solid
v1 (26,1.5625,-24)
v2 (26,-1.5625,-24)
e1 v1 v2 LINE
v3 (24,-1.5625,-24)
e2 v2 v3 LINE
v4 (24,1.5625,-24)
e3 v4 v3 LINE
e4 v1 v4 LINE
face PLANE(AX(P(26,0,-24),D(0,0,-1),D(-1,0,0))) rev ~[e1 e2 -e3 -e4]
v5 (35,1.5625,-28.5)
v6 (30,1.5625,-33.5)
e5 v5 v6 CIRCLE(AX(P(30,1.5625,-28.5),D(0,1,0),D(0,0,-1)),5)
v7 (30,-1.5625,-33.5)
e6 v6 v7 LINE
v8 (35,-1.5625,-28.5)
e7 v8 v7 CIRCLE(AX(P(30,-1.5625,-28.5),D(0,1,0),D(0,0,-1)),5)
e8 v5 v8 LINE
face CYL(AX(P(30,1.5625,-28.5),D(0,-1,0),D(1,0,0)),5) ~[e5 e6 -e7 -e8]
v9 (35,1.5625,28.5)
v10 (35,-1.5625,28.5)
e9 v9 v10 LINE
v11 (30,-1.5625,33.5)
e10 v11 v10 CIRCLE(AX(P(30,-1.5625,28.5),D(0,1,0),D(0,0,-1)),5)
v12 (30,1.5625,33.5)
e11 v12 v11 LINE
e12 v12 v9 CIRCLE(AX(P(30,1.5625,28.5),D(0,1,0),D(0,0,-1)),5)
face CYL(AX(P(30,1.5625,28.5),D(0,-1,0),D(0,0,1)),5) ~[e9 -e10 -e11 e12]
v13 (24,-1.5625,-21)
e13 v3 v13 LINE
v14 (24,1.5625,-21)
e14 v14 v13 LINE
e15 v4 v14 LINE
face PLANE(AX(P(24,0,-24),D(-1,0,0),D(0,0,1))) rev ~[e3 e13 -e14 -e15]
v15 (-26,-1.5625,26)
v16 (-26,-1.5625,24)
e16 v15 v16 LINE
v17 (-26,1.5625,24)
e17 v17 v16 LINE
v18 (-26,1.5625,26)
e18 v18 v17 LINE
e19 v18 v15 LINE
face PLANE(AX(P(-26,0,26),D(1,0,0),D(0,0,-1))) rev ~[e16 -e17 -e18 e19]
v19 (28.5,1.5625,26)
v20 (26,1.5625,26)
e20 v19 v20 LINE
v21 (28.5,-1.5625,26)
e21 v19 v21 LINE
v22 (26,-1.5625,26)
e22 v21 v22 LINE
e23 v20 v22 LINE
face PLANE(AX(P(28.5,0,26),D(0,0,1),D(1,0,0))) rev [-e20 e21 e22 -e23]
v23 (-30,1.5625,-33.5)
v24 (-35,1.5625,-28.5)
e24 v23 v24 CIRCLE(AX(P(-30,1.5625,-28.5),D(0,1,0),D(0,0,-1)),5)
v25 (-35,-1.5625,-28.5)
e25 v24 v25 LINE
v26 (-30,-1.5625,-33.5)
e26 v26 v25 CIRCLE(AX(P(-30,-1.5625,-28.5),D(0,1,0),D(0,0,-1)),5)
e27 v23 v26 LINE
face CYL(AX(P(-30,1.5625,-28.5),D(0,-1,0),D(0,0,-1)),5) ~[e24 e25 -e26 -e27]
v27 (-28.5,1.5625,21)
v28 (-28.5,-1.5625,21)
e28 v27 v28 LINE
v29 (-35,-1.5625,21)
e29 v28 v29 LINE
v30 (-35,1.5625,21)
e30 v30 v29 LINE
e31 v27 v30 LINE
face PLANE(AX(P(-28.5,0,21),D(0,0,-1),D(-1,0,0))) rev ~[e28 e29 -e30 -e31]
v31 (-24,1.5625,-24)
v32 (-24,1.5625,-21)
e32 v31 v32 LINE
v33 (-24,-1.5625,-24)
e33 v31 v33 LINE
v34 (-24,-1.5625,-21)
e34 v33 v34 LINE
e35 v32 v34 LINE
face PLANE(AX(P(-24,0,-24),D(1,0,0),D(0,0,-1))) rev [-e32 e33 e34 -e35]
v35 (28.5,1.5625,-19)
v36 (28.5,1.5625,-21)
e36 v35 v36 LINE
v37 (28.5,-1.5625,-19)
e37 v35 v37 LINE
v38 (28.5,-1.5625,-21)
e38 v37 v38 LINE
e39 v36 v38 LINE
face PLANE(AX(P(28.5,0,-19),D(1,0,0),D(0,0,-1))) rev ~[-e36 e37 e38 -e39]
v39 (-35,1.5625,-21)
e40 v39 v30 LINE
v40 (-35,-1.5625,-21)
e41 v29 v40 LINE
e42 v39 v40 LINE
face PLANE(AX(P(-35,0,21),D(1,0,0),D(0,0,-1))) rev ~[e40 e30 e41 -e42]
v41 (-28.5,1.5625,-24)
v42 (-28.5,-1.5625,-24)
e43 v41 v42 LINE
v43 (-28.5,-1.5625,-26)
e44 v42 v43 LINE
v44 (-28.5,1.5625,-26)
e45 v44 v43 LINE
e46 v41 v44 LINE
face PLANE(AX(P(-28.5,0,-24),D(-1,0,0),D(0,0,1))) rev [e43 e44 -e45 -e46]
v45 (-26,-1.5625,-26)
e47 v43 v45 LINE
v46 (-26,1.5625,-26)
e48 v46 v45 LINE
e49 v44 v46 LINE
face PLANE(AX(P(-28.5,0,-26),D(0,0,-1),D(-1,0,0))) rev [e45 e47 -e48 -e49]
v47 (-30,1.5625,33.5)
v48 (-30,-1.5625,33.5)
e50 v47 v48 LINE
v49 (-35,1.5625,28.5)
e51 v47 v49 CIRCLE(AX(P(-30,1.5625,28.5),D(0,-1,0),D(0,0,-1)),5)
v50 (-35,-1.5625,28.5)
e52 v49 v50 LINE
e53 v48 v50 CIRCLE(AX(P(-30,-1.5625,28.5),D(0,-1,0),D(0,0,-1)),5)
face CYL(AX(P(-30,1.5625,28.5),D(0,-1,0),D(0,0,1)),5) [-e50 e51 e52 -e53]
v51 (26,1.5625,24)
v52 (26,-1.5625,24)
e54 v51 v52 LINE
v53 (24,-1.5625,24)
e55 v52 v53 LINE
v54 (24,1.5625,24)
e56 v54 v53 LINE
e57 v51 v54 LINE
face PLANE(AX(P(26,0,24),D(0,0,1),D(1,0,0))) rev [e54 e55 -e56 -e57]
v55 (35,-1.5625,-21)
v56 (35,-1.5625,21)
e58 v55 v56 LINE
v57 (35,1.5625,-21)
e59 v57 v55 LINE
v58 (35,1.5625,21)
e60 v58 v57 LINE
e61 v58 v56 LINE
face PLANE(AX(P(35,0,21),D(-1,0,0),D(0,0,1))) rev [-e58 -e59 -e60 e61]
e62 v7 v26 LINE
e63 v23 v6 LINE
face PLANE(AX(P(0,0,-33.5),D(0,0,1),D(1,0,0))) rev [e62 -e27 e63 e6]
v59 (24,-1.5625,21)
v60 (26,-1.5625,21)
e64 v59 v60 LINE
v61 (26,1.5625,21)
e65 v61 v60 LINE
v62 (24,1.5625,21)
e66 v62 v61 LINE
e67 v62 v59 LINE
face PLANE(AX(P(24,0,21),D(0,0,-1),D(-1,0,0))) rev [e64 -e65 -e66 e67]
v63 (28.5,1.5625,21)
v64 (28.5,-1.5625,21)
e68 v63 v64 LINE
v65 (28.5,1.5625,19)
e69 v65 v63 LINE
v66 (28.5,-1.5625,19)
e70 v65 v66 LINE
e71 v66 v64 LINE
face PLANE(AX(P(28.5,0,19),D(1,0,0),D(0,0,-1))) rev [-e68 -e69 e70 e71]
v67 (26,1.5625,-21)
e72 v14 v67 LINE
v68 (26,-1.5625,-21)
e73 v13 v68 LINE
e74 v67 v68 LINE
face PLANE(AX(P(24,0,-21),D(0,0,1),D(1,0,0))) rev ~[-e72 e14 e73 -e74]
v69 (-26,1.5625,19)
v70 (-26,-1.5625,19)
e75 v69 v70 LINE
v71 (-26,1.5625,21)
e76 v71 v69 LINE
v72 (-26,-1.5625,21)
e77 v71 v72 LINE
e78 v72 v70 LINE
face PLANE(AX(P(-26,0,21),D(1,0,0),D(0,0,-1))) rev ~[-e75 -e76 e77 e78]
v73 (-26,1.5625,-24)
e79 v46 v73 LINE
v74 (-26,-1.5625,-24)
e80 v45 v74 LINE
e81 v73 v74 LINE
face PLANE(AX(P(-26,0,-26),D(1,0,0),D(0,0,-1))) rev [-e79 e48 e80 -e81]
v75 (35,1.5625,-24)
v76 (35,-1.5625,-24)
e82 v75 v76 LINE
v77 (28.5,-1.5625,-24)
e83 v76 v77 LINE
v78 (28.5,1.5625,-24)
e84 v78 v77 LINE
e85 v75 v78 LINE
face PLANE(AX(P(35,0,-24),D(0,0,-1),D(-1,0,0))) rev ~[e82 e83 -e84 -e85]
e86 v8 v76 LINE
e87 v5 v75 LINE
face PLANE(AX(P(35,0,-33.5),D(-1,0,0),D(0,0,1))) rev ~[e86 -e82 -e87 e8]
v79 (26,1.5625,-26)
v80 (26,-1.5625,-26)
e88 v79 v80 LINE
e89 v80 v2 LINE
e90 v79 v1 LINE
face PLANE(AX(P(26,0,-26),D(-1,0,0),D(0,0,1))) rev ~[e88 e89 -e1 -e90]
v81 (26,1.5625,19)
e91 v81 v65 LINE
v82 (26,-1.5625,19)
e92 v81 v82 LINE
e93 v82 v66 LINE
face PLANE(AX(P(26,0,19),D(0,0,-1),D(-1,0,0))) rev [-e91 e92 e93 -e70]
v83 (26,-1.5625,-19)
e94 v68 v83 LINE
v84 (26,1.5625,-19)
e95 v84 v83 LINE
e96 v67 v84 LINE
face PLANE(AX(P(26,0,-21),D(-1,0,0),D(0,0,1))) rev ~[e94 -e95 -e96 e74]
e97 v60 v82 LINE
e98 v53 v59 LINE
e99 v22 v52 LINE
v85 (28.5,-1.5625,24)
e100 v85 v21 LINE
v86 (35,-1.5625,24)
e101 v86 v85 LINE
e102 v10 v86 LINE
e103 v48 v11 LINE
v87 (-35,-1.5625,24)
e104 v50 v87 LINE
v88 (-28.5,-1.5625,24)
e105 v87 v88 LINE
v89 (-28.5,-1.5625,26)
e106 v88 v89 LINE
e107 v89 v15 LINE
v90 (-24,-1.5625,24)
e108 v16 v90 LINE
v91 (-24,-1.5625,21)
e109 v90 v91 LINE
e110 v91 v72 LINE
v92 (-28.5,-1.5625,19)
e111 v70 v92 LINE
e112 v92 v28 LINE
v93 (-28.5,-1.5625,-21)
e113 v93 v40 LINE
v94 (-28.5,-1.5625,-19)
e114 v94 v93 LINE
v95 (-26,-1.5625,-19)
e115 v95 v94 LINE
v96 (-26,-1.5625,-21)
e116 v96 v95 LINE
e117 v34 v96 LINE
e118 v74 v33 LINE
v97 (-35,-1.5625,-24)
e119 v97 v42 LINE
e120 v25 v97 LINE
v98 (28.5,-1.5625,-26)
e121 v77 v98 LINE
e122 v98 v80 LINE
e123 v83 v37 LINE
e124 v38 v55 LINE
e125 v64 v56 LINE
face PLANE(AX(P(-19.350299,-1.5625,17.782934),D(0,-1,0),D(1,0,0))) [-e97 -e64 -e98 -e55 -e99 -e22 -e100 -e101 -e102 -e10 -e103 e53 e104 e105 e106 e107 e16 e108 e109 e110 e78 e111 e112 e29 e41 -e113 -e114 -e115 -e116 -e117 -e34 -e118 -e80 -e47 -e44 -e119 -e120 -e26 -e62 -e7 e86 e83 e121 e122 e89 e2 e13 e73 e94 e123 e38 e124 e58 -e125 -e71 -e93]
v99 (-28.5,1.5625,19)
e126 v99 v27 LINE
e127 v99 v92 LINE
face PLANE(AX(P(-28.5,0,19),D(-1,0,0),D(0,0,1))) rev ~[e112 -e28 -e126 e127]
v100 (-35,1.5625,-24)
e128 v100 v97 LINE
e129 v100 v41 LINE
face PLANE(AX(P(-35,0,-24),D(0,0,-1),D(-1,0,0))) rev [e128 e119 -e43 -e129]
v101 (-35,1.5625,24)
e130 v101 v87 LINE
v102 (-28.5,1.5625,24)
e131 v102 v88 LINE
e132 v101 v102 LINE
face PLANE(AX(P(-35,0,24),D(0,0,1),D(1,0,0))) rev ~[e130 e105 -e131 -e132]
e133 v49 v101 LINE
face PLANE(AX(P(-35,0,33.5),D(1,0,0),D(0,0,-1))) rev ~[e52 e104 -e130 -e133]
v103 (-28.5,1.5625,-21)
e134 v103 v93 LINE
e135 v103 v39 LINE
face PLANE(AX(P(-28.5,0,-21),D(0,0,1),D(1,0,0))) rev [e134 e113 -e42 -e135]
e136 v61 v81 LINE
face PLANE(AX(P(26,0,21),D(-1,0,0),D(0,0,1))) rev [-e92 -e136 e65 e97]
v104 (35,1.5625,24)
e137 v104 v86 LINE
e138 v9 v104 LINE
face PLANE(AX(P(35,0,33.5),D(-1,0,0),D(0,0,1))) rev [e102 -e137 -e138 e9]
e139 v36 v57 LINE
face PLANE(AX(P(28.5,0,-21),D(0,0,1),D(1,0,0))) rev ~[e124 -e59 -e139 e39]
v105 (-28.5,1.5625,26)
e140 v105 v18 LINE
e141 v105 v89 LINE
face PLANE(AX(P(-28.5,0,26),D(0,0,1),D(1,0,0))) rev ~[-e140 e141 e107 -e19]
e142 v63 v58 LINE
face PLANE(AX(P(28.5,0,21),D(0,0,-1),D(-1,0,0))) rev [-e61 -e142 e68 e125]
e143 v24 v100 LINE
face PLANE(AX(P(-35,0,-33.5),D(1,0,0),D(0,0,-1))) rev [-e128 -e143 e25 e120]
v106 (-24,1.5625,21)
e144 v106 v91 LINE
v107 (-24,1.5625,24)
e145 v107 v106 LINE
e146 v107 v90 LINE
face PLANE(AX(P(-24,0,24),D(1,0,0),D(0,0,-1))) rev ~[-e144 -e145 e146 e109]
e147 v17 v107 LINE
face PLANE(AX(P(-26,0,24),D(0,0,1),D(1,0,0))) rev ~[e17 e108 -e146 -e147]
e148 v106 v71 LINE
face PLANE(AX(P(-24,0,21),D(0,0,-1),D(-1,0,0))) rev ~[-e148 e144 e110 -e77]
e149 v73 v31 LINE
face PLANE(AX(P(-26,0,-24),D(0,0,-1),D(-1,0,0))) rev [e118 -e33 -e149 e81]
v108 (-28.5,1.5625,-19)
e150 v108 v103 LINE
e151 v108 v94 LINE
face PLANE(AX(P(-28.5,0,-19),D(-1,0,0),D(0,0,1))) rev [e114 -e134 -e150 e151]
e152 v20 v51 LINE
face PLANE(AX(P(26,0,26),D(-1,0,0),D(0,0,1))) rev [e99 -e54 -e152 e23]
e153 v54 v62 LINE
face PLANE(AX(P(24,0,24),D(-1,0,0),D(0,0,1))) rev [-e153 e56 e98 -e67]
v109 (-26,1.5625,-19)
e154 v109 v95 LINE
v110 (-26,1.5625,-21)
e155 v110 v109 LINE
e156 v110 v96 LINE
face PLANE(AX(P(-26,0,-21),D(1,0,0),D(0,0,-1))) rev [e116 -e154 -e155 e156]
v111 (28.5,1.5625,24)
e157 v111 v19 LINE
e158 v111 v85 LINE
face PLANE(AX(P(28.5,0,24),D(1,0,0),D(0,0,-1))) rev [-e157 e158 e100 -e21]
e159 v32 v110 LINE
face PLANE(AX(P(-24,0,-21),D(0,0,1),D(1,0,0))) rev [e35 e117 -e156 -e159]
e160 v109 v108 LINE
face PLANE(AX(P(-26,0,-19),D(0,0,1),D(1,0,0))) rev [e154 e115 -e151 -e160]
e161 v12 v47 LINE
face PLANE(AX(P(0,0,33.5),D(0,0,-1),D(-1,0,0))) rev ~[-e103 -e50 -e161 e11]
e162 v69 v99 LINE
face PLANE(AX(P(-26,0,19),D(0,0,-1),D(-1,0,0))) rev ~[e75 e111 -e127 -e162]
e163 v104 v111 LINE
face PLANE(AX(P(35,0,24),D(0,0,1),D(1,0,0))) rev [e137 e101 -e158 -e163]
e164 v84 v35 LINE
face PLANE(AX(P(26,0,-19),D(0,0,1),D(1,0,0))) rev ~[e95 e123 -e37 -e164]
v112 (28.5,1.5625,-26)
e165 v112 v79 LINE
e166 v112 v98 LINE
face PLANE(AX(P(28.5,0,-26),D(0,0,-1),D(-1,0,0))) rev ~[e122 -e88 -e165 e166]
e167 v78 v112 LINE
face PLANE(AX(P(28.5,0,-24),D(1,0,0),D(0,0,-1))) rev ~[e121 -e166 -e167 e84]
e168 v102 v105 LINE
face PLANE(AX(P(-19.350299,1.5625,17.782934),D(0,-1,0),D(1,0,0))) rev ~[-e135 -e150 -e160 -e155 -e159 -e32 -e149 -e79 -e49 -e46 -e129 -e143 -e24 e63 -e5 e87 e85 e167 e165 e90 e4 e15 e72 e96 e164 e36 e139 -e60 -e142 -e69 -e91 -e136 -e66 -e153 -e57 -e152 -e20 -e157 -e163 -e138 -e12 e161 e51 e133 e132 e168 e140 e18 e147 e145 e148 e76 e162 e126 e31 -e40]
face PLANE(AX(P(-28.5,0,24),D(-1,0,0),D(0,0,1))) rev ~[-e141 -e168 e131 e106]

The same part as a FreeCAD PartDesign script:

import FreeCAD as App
import Part
import Sketcher


def edges_at(feature, points):
    """Names of the edges that pass closest to the given points."""
    edges = feature.Shape.Edges
    near = lambda p: min(range(len(edges)), key=lambda i: edges[i].distToShape(Part.Vertex(*p))[0])
    return sorted({f"Edge{near(p) + 1}" for p in points})

doc = App.newDocument("Part")
params = doc.addObject("Spreadsheet::Sheet", "Params")
for row, (alias, value) in enumerate([
    ("sketch1_width", "35 mm"),
    ("sketch1_width2", "2 mm"),
    ("sketch1_height", "21 mm"),
    ("sketch1_height2", "3 mm"),
    ("sketch1_width3", "6.5 mm"),
    ("pad1_length", "3.125 mm"),
    ("sketch2_width", "35 mm"),
    ("sketch2_width2", "2 mm"),
    ("sketch2_height", "21 mm"),
    ("sketch2_height2", "3 mm"),
    ("sketch2_width3", "6.5 mm"),
    ("pad2_length", "3.125 mm"),
    ("fillet_radius", "5 mm"),
], start=1):
    params.set(f"A{row}", alias)
    params.set(f"B{row}", "=" + value)
    params.setAlias(f"B{row}", alias)

body = doc.addObject("PartDesign::Body", "Body")

# Sketch on XZ plane
sketch1 = body.newObject("Sketcher::SketchObject", "Sketch")
sketch1.AttachmentSupport = (doc.getObject("XZ_Plane"), [""])
sketch1.MapMode = "FlatFace"
sketch1.addGeometry(Part.LineSegment(App.Vector(35, -33.5, 0), App.Vector(0, -33.5, 0)), False)
sketch1.addGeometry(Part.LineSegment(App.Vector(0, -33.5, 0), App.Vector(0, 0, 0)), False)
sketch1.addGeometry(Part.LineSegment(App.Vector(0, 0, 0), App.Vector(35, 0, 0)), False)
sketch1.addGeometry(Part.LineSegment(App.Vector(35, 0, 0), App.Vector(35, -21, 0)), False)
sketch1.addGeometry(Part.LineSegment(App.Vector(35, -21, 0), App.Vector(28.5, -21, 0)), False)
sketch1.addGeometry(Part.LineSegment(App.Vector(28.5, -21, 0), App.Vector(28.5, -19, 0)), False)
sketch1.addGeometry(Part.LineSegment(App.Vector(28.5, -19, 0), App.Vector(26, -19, 0)), False)
sketch1.addGeometry(Part.LineSegment(App.Vector(26, -19, 0), App.Vector(26, -21, 0)), False)
sketch1.addGeometry(Part.LineSegment(App.Vector(26, -21, 0), App.Vector(24, -21, 0)), False)
sketch1.addGeometry(Part.LineSegment(App.Vector(24, -21, 0), App.Vector(24, -24, 0)), False)
sketch1.addGeometry(Part.LineSegment(App.Vector(24, -24, 0), App.Vector(26, -24, 0)), False)
sketch1.addGeometry(Part.LineSegment(App.Vector(26, -24, 0), App.Vector(26, -26, 0)), False)
sketch1.addGeometry(Part.LineSegment(App.Vector(26, -26, 0), App.Vector(28.5, -26, 0)), False)
sketch1.addGeometry(Part.LineSegment(App.Vector(28.5, -26, 0), App.Vector(28.5, -24, 0)), False)
sketch1.addGeometry(Part.LineSegment(App.Vector(28.5, -24, 0), App.Vector(35, -24, 0)), False)
sketch1.addGeometry(Part.LineSegment(App.Vector(35, -24, 0), App.Vector(35, -33.5, 0)), False)
sketch1.addConstraint(Sketcher.Constraint("Coincident", 0, 2, 1, 1))
sketch1.addConstraint(Sketcher.Constraint("Coincident", 1, 2, 2, 1))
sketch1.addConstraint(Sketcher.Constraint("Coincident", 2, 2, 3, 1))
sketch1.addConstraint(Sketcher.Constraint("Coincident", 3, 2, 4, 1))
sketch1.addConstraint(Sketcher.Constraint("Coincident", 4, 2, 5, 1))
sketch1.addConstraint(Sketcher.Constraint("Coincident", 5, 2, 6, 1))
sketch1.addConstraint(Sketcher.Constraint("Coincident", 6, 2, 7, 1))
sketch1.addConstraint(Sketcher.Constraint("Coincident", 7, 2, 8, 1))
sketch1.addConstraint(Sketcher.Constraint("Coincident", 8, 2, 9, 1))
sketch1.addConstraint(Sketcher.Constraint("Coincident", 9, 2, 10, 1))
sketch1.addConstraint(Sketcher.Constraint("Coincident", 10, 2, 11, 1))
sketch1.addConstraint(Sketcher.Constraint("Coincident", 11, 2, 12, 1))
sketch1.addConstraint(Sketcher.Constraint("Coincident", 12, 2, 13, 1))
sketch1.addConstraint(Sketcher.Constraint("Coincident", 13, 2, 14, 1))
sketch1.addConstraint(Sketcher.Constraint("Coincident", 14, 2, 15, 1))
sketch1.addConstraint(Sketcher.Constraint("Coincident", 15, 2, 0, 1))
sketch1.addConstraint(Sketcher.Constraint("Horizontal", 0))
sketch1.addConstraint(Sketcher.Constraint("Vertical", 1))
sketch1.addConstraint(Sketcher.Constraint("Horizontal", 2))
sketch1.addConstraint(Sketcher.Constraint("Vertical", 3))
sketch1.addConstraint(Sketcher.Constraint("Horizontal", 4))
sketch1.addConstraint(Sketcher.Constraint("Vertical", 5))
sketch1.addConstraint(Sketcher.Constraint("Horizontal", 6))
sketch1.addConstraint(Sketcher.Constraint("Vertical", 7))
sketch1.addConstraint(Sketcher.Constraint("Horizontal", 8))
sketch1.addConstraint(Sketcher.Constraint("Vertical", 9))
sketch1.addConstraint(Sketcher.Constraint("Horizontal", 10))
sketch1.addConstraint(Sketcher.Constraint("Vertical", 11))
sketch1.addConstraint(Sketcher.Constraint("Horizontal", 12))
sketch1.addConstraint(Sketcher.Constraint("Vertical", 13))
sketch1.addConstraint(Sketcher.Constraint("Horizontal", 14))
sketch1.addConstraint(Sketcher.Constraint("Vertical", 15))
sketch1.addConstraint(Sketcher.Constraint("Coincident", 1, 2, -1, 1))
sketch1.addConstraint(Sketcher.Constraint("Horizontal", 4, 2, 7, 2))
sketch1.addConstraint(Sketcher.Constraint("Horizontal", 10, 2, 13, 2))
sketch1.addConstraint(Sketcher.Constraint("Vertical", 7, 2, 10, 2))
sketch1.addConstraint(Sketcher.Constraint("Vertical", 5, 2, 12, 2))
sketch1.addConstraint(Sketcher.Constraint("Vertical", 3, 2, 14, 2))
sketch1.addConstraint(Sketcher.Constraint("Equal", 10, 5))
sketch1.addConstraint(Sketcher.Constraint("Equal", 7, 11))
sketch1.addConstraint(Sketcher.Constraint("DistanceX", 0, 2, 0, 1, 35.0))
sketch1.addConstraint(Sketcher.Constraint("DistanceX", 8, 2, 8, 1, 2.0))
sketch1.addConstraint(Sketcher.Constraint("DistanceY", 3, 2, 3, 1, 21.0))
sketch1.addConstraint(Sketcher.Constraint("DistanceY", 9, 2, 9, 1, 3.0))
sketch1.addConstraint(Sketcher.Constraint("DistanceX", 4, 2, 4, 1, 6.5))
sketch1.addConstraint(Sketcher.Constraint("DistanceX", 6, 2, 6, 1, 2.5))
sketch1.addConstraint(Sketcher.Constraint("DistanceY", 1, 1, 1, 2, 33.5))
sketch1.setExpression("Constraints[40]", "Params.sketch1_width")
sketch1.setExpression("Constraints[41]", "Params.sketch1_width2")
sketch1.setExpression("Constraints[42]", "Params.sketch1_height")
sketch1.setExpression("Constraints[43]", "Params.sketch1_height2")
sketch1.setExpression("Constraints[44]", "Params.sketch1_width3")
pad1 = body.newObject("PartDesign::Pad", "Pad")
pad1.Profile = sketch1
pad1.setExpression("Length", "Params.pad1_length")
pad1.Midplane = True
doc.recompute()

mirrored = body.newObject("PartDesign::Mirrored", "Mirrored")
mirrored.Originals = [pad1]
mirrored.MirrorPlane = (doc.getObject("YZ_Plane"), [""])
body.Tip = mirrored
doc.recompute()

mirrored2 = body.newObject("PartDesign::Mirrored", "Mirrored001")
mirrored2.Originals = [pad1]
mirrored2.MirrorPlane = (doc.getObject("XY_Plane"), [""])
body.Tip = mirrored2

# Sketch on XZ plane
sketch2 = body.newObject("Sketcher::SketchObject", "Sketch001")
sketch2.AttachmentSupport = (doc.getObject("XZ_Plane"), [""])
sketch2.MapMode = "FlatFace"
sketch2.addGeometry(Part.LineSegment(App.Vector(-35, 33.5, 0), App.Vector(0, 33.5, 0)), False)
sketch2.addGeometry(Part.LineSegment(App.Vector(0, 33.5, 0), App.Vector(0, 0, 0)), False)
sketch2.addGeometry(Part.LineSegment(App.Vector(0, 0, 0), App.Vector(-35, 0, 0)), False)
sketch2.addGeometry(Part.LineSegment(App.Vector(-35, 0, 0), App.Vector(-35, 21, 0)), False)
sketch2.addGeometry(Part.LineSegment(App.Vector(-35, 21, 0), App.Vector(-28.5, 21, 0)), False)
sketch2.addGeometry(Part.LineSegment(App.Vector(-28.5, 21, 0), App.Vector(-28.5, 19, 0)), False)
sketch2.addGeometry(Part.LineSegment(App.Vector(-28.5, 19, 0), App.Vector(-26, 19, 0)), False)
sketch2.addGeometry(Part.LineSegment(App.Vector(-26, 19, 0), App.Vector(-26, 21, 0)), False)
sketch2.addGeometry(Part.LineSegment(App.Vector(-26, 21, 0), App.Vector(-24, 21, 0)), False)
sketch2.addGeometry(Part.LineSegment(App.Vector(-24, 21, 0), App.Vector(-24, 24, 0)), False)
sketch2.addGeometry(Part.LineSegment(App.Vector(-24, 24, 0), App.Vector(-26, 24, 0)), False)
sketch2.addGeometry(Part.LineSegment(App.Vector(-26, 24, 0), App.Vector(-26, 26, 0)), False)
sketch2.addGeometry(Part.LineSegment(App.Vector(-26, 26, 0), App.Vector(-28.5, 26, 0)), False)
sketch2.addGeometry(Part.LineSegment(App.Vector(-28.5, 26, 0), App.Vector(-28.5, 24, 0)), False)
sketch2.addGeometry(Part.LineSegment(App.Vector(-28.5, 24, 0), App.Vector(-35, 24, 0)), False)
sketch2.addGeometry(Part.LineSegment(App.Vector(-35, 24, 0), App.Vector(-35, 33.5, 0)), False)
sketch2.addConstraint(Sketcher.Constraint("Coincident", 0, 2, 1, 1))
sketch2.addConstraint(Sketcher.Constraint("Coincident", 1, 2, 2, 1))
sketch2.addConstraint(Sketcher.Constraint("Coincident", 2, 2, 3, 1))
sketch2.addConstraint(Sketcher.Constraint("Coincident", 3, 2, 4, 1))
sketch2.addConstraint(Sketcher.Constraint("Coincident", 4, 2, 5, 1))
sketch2.addConstraint(Sketcher.Constraint("Coincident", 5, 2, 6, 1))
sketch2.addConstraint(Sketcher.Constraint("Coincident", 6, 2, 7, 1))
sketch2.addConstraint(Sketcher.Constraint("Coincident", 7, 2, 8, 1))
sketch2.addConstraint(Sketcher.Constraint("Coincident", 8, 2, 9, 1))
sketch2.addConstraint(Sketcher.Constraint("Coincident", 9, 2, 10, 1))
sketch2.addConstraint(Sketcher.Constraint("Coincident", 10, 2, 11, 1))
sketch2.addConstraint(Sketcher.Constraint("Coincident", 11, 2, 12, 1))
sketch2.addConstraint(Sketcher.Constraint("Coincident", 12, 2, 13, 1))
sketch2.addConstraint(Sketcher.Constraint("Coincident", 13, 2, 14, 1))
sketch2.addConstraint(Sketcher.Constraint("Coincident", 14, 2, 15, 1))
sketch2.addConstraint(Sketcher.Constraint("Coincident", 15, 2, 0, 1))
sketch2.addConstraint(Sketcher.Constraint("Horizontal", 0))
sketch2.addConstraint(Sketcher.Constraint("Vertical", 1))
sketch2.addConstraint(Sketcher.Constraint("Horizontal", 2))
sketch2.addConstraint(Sketcher.Constraint("Vertical", 3))
sketch2.addConstraint(Sketcher.Constraint("Horizontal", 4))
sketch2.addConstraint(Sketcher.Constraint("Vertical", 5))
sketch2.addConstraint(Sketcher.Constraint("Horizontal", 6))
sketch2.addConstraint(Sketcher.Constraint("Vertical", 7))
sketch2.addConstraint(Sketcher.Constraint("Horizontal", 8))
sketch2.addConstraint(Sketcher.Constraint("Vertical", 9))
sketch2.addConstraint(Sketcher.Constraint("Horizontal", 10))
sketch2.addConstraint(Sketcher.Constraint("Vertical", 11))
sketch2.addConstraint(Sketcher.Constraint("Horizontal", 12))
sketch2.addConstraint(Sketcher.Constraint("Vertical", 13))
sketch2.addConstraint(Sketcher.Constraint("Horizontal", 14))
sketch2.addConstraint(Sketcher.Constraint("Vertical", 15))
sketch2.addConstraint(Sketcher.Constraint("Coincident", 1, 2, -1, 1))
sketch2.addConstraint(Sketcher.Constraint("Horizontal", 4, 2, 7, 2))
sketch2.addConstraint(Sketcher.Constraint("Horizontal", 10, 2, 13, 2))
sketch2.addConstraint(Sketcher.Constraint("Vertical", 7, 2, 10, 2))
sketch2.addConstraint(Sketcher.Constraint("Vertical", 5, 2, 12, 2))
sketch2.addConstraint(Sketcher.Constraint("Vertical", 3, 2, 14, 2))
sketch2.addConstraint(Sketcher.Constraint("Equal", 10, 5))
sketch2.addConstraint(Sketcher.Constraint("Equal", 7, 11))
sketch2.addConstraint(Sketcher.Constraint("DistanceX", 0, 1, 0, 2, 35.0))
sketch2.addConstraint(Sketcher.Constraint("DistanceX", 8, 1, 8, 2, 2.0))
sketch2.addConstraint(Sketcher.Constraint("DistanceY", 3, 1, 3, 2, 21.0))
sketch2.addConstraint(Sketcher.Constraint("DistanceY", 9, 1, 9, 2, 3.0))
sketch2.addConstraint(Sketcher.Constraint("DistanceX", 4, 1, 4, 2, 6.5))
sketch2.addConstraint(Sketcher.Constraint("DistanceX", 6, 1, 6, 2, 2.5))
sketch2.addConstraint(Sketcher.Constraint("DistanceY", 1, 2, 1, 1, 33.5))
sketch2.setExpression("Constraints[40]", "Params.sketch2_width")
sketch2.setExpression("Constraints[41]", "Params.sketch2_width2")
sketch2.setExpression("Constraints[42]", "Params.sketch2_height")
sketch2.setExpression("Constraints[43]", "Params.sketch2_height2")
sketch2.setExpression("Constraints[44]", "Params.sketch2_width3")
pad2 = body.newObject("PartDesign::Pad", "Pad001")
pad2.Profile = sketch2
pad2.setExpression("Length", "Params.pad2_length")
pad2.Midplane = True
doc.recompute()

fillet = body.newObject("PartDesign::Fillet", "Fillet")
fillet.Base = (pad2, edges_at(pad2, [
    (35, 0, 33.5),
    (35, 0, -33.5),
    (-35, 0, -33.5),
    (-35, 0, 33.5),
]))
fillet.setExpression("Radius", "Params.fillet_radius")

doc.recompute()
